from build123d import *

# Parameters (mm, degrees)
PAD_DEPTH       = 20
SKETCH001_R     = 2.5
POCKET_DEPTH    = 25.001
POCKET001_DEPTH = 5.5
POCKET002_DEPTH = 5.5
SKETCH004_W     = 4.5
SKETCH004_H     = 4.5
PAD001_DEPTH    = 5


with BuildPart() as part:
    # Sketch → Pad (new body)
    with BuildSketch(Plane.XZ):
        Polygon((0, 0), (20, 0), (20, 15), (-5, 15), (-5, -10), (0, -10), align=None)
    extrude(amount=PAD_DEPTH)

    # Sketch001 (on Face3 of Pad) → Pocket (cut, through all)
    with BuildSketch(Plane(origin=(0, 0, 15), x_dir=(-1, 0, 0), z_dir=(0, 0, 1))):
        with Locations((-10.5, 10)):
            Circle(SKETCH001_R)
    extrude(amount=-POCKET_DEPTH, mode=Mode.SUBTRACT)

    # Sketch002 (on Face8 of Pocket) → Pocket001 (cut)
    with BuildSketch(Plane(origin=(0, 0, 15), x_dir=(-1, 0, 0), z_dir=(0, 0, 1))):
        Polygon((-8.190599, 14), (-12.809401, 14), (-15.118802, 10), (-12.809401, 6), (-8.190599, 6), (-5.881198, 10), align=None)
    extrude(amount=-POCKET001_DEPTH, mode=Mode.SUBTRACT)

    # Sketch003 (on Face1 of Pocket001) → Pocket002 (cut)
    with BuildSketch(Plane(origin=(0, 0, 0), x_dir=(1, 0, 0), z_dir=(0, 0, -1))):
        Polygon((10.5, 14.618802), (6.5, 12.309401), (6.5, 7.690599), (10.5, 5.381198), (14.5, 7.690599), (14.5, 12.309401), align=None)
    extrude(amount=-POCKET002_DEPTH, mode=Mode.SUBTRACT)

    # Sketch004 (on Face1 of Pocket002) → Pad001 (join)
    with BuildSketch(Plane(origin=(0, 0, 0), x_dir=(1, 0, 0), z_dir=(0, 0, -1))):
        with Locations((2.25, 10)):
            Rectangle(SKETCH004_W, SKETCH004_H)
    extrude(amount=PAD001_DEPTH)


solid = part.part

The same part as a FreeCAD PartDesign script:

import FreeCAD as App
import Part
import Sketcher

V = App.Vector
Q = App.Units.Quantity


def add_polygon(sketch, points):
    """Adds a closed chain of lines whose ends are joined by coincident constraints."""
    first, n = sketch.GeometryCount, len(points)
    for a, b in zip(points, points[1:] + points[:1]):
        sketch.addGeometry(Part.LineSegment(App.Vector(*a, 0), App.Vector(*b, 0)), False)
    for i in range(n):
        sketch.addConstraint(Sketcher.Constraint("Coincident", first + i, 2, first + (i + 1) % n, 1))

doc = App.newDocument("Part")
body = doc.addObject("PartDesign::Body", "Body")

sketch1 = doc.addObject("Sketcher::SketchObject", "Sketch")
body.addObject(sketch1)
sketch1.AttachmentSupport = (doc.XZ_Plane, [""])
sketch1.MapMode = "FlatFace"
add_polygon(sketch1, [(0, 0), (20, 0), (20, 15), (-5, 15), (-5, -10), (0, -10)])
sketch1.addConstraint([
    Sketcher.Constraint("Horizontal", 0),
    Sketcher.Constraint("Vertical", 1),
    Sketcher.Constraint("Horizontal", 2),
    Sketcher.Constraint("Vertical", 3),
    Sketcher.Constraint("Horizontal", 4),
    Sketcher.Constraint("Vertical", 5),
    Sketcher.Constraint("Coincident", 5, 2, -1, 1),
    Sketcher.Constraint("Equal", 2, 3),
    Sketcher.Constraint("DistanceX", 0, 1, 0, 2, Q("20 mm")),
    Sketcher.Constraint("DistanceX", 2, 2, 2, 1, Q("25 mm")),
    Sketcher.Constraint("DistanceY", 1, 1, 1, 2, Q("15 mm")),
])
pad1 = doc.addObject("PartDesign::Pad", "Pad")
body.addObject(pad1)
pad1.Profile = sketch1
pad1.Length = 20

sketch2 = doc.addObject("Sketcher::SketchObject", "Sketch001")
body.addObject(sketch2)
sketch2.AttachmentSupport = (doc.XY_Plane, [""])
sketch2.MapMode = "FlatFace"
sketch2.AttachmentOffset = App.Placement(V(0, 0, 15), App.Rotation())
sketch2.addGeometry(Part.Circle(V(10.5, -10, 0), V(0, 0, 1), 2.5), False)
sketch2.addConstraint([
    Sketcher.Constraint("Diameter", 0, Q("5 mm")),
    Sketcher.Constraint("DistanceY", 0, 3, -1, 1, Q("10 mm")),
    Sketcher.Constraint("DistanceX", -1, 1, 0, 3, Q("10.5 mm")),
])
pocket1 = doc.addObject("PartDesign::Pocket", "Pocket")
body.addObject(pocket1)
pocket1.Profile = sketch2
pocket1.Type = "ThroughAll"

sketch3 = doc.addObject("Sketcher::SketchObject", "Sketch002")
body.addObject(sketch3)
sketch3.AttachmentSupport = (doc.XY_Plane, [""])
sketch3.MapMode = "FlatFace"
sketch3.AttachmentOffset = App.Placement(V(0, 0, 15), App.Rotation())
add_polygon(sketch3, [(8.190599, -14), (12.809401, -14), (15.118802, -10), (12.809401, -6), (8.190599, -6), (5.881198, -10)])
sketch3.addConstraint([
    Sketcher.Constraint("Horizontal", 0),
    Sketcher.Constraint("Horizontal", 3),
    Sketcher.Constraint("Parallel", 1, 4),
    Sketcher.Constraint("Parallel", 2, 5),
    Sketcher.Constraint("Horizontal", 1, 2, 4, 2),
    Sketcher.Constraint("Vertical", 0, 2, 2, 2),
    Sketcher.Constraint("Vertical", 3, 2, 5, 2),
    Sketcher.Constraint("Angle", 1, Q("60.000001 deg")),
    Sketcher.Constraint("DistanceY", 0, 2, -1, 1, Q("14 mm")),
    Sketcher.Constraint("DistanceY", 1, 2, -1, 1, Q("10 mm")),
    Sketcher.Constraint("DistanceX", 0, 1, 0, 2, Q("4.618802 mm")),
    Sketcher.Constraint("DistanceX", -1, 1, 0, 2, Q("12.809401 mm")),
])
pocket2 = doc.addObject("PartDesign::Pocket", "Pocket001")
body.addObject(pocket2)
pocket2.Profile = sketch3
pocket2.Length = 5.5

sketch4 = doc.addObject("Sketcher::SketchObject", "Sketch003")
body.addObject(sketch4)
sketch4.AttachmentSupport = (doc.XY_Plane, [""])
sketch4.MapMode = "FlatFace"
add_polygon(sketch4, [(10.5, -14.618802), (6.5, -12.309401), (6.5, -7.690599), (10.5, -5.381198), (14.5, -7.690599), (14.5, -12.309401)])
sketch4.addConstraint([
    Sketcher.Constraint("Vertical", 1),
    Sketcher.Constraint("Vertical", 4),
    Sketcher.Constraint("Parallel", 0, 3),
    Sketcher.Constraint("Parallel", 2, 5),
    Sketcher.Constraint("Horizontal", 1, 2, 3, 2),
    Sketcher.Constraint("Horizontal", 0, 2, 4, 2),
    Sketcher.Constraint("Vertical", 2, 2, 5, 2),
    Sketcher.Constraint("Angle", 0, Q("150.000001 deg")),
    Sketcher.Constraint("DistanceX", 1, 2, 2, 2, Q("4 mm")),
    Sketcher.Constraint("DistanceX", -1, 1, 0, 2, Q("6.5 mm")),
    Sketcher.Constraint("DistanceY", 1, 1, 1, 2, Q("4.618802 mm")),
    Sketcher.Constraint("DistanceY", 0, 2, -1, 1, Q("12.309401 mm")),
])
pocket3 = doc.addObject("PartDesign::Pocket", "Pocket002")
body.addObject(pocket3)
pocket3.Profile = sketch4
pocket3.Length = 5.5
pocket3.Reversed = True

sketch5 = doc.addObject("Sketcher::SketchObject", "Sketch004")
body.addObject(sketch5)
sketch5.AttachmentSupport = (doc.XY_Plane, [""])
sketch5.MapMode = "FlatFace"
add_polygon(sketch5, [(0, -12.25), (0, -7.75), (4.5, -7.75), (4.5, -12.25)])
sketch5.addConstraint([
    Sketcher.Constraint("Vertical", 0),
    Sketcher.Constraint("Horizontal", 1),
    Sketcher.Constraint("Vertical", 2),
    Sketcher.Constraint("Horizontal", 3),
    Sketcher.Constraint("PointOnObject", 0, 2, -2),
    Sketcher.Constraint("Equal", 3, 0),
    Sketcher.Constraint("DistanceX", 1, 1, 1, 2, Q("4.5 mm")),
    Sketcher.Constraint("DistanceY", 0, 2, -1, 1, Q("7.75 mm")),
])
pad2 = doc.addObject("PartDesign::Pad", "Pad001")
body.addObject(pad2)
pad2.Profile = sketch5
pad2.Length = 5
pad2.Reversed = True

doc.recompute()
